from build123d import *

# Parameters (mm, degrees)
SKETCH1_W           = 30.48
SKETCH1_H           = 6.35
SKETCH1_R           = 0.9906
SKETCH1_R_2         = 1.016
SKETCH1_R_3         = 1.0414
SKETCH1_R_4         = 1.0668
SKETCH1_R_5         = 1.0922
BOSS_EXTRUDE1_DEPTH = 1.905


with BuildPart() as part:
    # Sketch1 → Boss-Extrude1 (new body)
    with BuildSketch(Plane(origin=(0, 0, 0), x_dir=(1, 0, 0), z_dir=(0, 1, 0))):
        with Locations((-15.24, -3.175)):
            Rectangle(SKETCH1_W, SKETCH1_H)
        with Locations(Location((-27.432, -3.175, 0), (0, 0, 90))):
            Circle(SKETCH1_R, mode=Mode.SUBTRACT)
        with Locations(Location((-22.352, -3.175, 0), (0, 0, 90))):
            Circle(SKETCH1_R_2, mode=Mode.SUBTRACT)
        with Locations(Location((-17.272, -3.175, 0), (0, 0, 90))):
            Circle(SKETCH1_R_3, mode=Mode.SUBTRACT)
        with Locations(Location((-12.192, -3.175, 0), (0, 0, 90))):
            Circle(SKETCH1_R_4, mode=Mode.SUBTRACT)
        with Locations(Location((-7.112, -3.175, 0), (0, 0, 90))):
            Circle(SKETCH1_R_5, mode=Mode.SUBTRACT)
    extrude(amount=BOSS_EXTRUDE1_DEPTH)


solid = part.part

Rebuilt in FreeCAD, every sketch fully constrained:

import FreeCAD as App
import Part
import Sketcher
from FreeCAD import Vector
Q = App.Units.Quantity

doc = App.newDocument("Part")
body = doc.addObject("PartDesign::Body", "Body")

sketch1 = body.newObject("Sketcher::SketchObject", "Sketch")
sketch1.AttachmentSupport = (doc.getObject("XZ_Plane"), [""])
sketch1.MapMode = "FlatFace"
sketch1.addGeometry(Part.LineSegment(Vector(-30.48, 0, 0), Vector(-30.48, 6.35, 0)), False)
sketch1.addGeometry(Part.LineSegment(Vector(-30.48, 6.35, 0), Vector(0, 6.35, 0)), False)
sketch1.addGeometry(Part.LineSegment(Vector(0, 6.35, 0), Vector(0, 0, 0)), False)
sketch1.addGeometry(Part.LineSegment(Vector(0, 0, 0), Vector(-30.48, 0, 0)), False)
sketch1.addGeometry(Part.Circle(Vector(-27.432, 3.175, 0), Vector(0, 0, 1), 0.9906), False)
sketch1.addGeometry(Part.Circle(Vector(-22.352, 3.175, 0), Vector(0, 0, 1), 1.016), False)
sketch1.addGeometry(Part.Circle(Vector(-17.272, 3.175, 0), Vector(0, 0, 1), 1.0414), False)
sketch1.addGeometry(Part.Circle(Vector(-12.192, 3.175, 0), Vector(0, 0, 1), 1.0668), False)
sketch1.addGeometry(Part.Circle(Vector(-7.112, 3.175, 0), Vector(0, 0, 1), 1.0922), False)
sketch1.addConstraint(Sketcher.Constraint("Coincident", 0, 2, 1, 1))
sketch1.addConstraint(Sketcher.Constraint("Coincident", 1, 2, 2, 1))
sketch1.addConstraint(Sketcher.Constraint("Coincident", 2, 2, 3, 1))
sketch1.addConstraint(Sketcher.Constraint("Coincident", 3, 2, 0, 1))
sketch1.addConstraint(Sketcher.Constraint("Vertical", 0))
sketch1.addConstraint(Sketcher.Constraint("Horizontal", 1))
sketch1.addConstraint(Sketcher.Constraint("Vertical", 2))
sketch1.addConstraint(Sketcher.Constraint("Horizontal", 3))
sketch1.addConstraint(Sketcher.Constraint("Coincident", 2, 2, -1, 1))
sketch1.addConstraint(Sketcher.Constraint("Horizontal", 4, 3, 5, 3))
sketch1.addConstraint(Sketcher.Constraint("Horizontal", 5, 3, 6, 3))
sketch1.addConstraint(Sketcher.Constraint("Horizontal", 6, 3, 7, 3))
sketch1.addConstraint(Sketcher.Constraint("Horizontal", 7, 3, 8, 3))
sketch1.addConstraint(Sketcher.Constraint("Diameter", 5, Q("0.08 in")))
sketch1.addConstraint(Sketcher.Constraint("Diameter", 4, Q("0.078 in")))
sketch1.addConstraint(Sketcher.Constraint("Diameter", 6, Q("0.082 in")))
sketch1.addConstraint(Sketcher.Constraint("Diameter", 7, Q("0.084 in")))
sketch1.addConstraint(Sketcher.Constraint("Diameter", 8, Q("0.086 in")))
sketch1.addConstraint(Sketcher.Constraint("DistanceX", 1, 1, 1, 2, Q("1.2 in")))
sketch1.addConstraint(Sketcher.Constraint("DistanceY", 0, 1, 0, 2, Q("0.25 in")))
sketch1.addConstraint(Sketcher.Constraint("DistanceX", 4, 3, 5, 3, Q("0.2 in")))
sketch1.addConstraint(Sketcher.Constraint("DistanceX", 5, 3, 6, 3, Q("0.2 in")))
sketch1.addConstraint(Sketcher.Constraint("DistanceX", 6, 3, 7, 3, Q("0.2 in")))
sketch1.addConstraint(Sketcher.Constraint("DistanceX", 7, 3, 8, 3, Q("0.2 in")))
sketch1.addConstraint(Sketcher.Constraint("DistanceX", 4, 3, -1, 1, Q("1.08 in")))
sketch1.addConstraint(Sketcher.Constraint("DistanceY", -1, 1, 4, 3, Q("0.125 in")))
pad1 = body.newObject("PartDesign::Pad", "Pad")
pad1.Profile = sketch1
pad1.Length = Q("0.075 in")
pad1.Reversed = True

doc.recompute()
